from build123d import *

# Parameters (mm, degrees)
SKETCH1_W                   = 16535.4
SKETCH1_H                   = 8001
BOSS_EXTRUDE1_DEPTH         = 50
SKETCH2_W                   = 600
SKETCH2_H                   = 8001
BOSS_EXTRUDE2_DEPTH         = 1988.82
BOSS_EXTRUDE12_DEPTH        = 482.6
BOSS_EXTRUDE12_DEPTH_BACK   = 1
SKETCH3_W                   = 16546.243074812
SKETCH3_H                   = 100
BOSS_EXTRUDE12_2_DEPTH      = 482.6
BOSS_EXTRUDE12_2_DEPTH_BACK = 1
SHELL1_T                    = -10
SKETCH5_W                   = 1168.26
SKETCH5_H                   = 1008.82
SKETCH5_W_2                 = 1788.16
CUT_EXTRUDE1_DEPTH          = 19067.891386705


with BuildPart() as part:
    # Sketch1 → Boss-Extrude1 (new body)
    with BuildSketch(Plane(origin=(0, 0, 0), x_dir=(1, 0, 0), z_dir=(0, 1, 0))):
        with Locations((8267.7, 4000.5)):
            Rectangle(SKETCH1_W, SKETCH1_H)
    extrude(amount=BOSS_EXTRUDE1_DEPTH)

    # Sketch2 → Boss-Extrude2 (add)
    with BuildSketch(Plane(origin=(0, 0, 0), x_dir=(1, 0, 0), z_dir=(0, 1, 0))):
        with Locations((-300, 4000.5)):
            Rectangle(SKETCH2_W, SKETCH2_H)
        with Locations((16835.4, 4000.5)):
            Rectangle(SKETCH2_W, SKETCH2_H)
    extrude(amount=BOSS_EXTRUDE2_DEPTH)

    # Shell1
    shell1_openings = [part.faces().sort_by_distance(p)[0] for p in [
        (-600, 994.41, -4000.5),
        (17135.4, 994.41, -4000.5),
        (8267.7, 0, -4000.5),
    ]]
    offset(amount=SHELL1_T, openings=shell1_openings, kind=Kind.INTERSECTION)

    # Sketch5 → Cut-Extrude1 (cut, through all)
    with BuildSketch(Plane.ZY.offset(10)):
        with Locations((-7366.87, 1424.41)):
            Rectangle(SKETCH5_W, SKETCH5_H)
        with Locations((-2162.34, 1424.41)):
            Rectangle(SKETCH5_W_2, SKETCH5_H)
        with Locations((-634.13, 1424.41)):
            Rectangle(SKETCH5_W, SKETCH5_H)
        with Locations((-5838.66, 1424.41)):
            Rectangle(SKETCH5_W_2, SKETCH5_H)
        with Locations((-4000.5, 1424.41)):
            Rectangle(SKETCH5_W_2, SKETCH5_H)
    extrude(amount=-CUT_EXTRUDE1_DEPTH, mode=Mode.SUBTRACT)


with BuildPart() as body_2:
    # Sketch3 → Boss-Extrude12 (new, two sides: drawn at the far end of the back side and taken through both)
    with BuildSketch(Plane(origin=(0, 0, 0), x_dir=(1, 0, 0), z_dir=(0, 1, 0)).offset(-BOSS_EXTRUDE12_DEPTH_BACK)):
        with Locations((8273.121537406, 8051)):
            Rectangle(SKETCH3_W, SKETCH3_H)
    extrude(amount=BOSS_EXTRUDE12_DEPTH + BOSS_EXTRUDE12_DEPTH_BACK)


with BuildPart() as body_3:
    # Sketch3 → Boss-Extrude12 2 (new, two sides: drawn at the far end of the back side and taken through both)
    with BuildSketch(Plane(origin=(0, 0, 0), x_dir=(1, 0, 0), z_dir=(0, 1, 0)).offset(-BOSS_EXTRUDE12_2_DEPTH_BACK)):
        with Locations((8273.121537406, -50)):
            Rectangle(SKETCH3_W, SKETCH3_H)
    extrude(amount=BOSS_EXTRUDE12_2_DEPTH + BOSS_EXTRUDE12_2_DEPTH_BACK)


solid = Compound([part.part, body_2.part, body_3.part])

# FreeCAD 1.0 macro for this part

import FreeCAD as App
import Part
import Sketcher

V = App.Vector
Q = App.Units.Quantity


def faces_at(feature, points):
    """Names of the faces that lie closest to the given points."""
    faces = feature.Shape.Faces
    near = lambda p: min(range(len(faces)), key=lambda i: faces[i].distToShape(Part.Vertex(*p))[0])
    return sorted({f"Face{near(p) + 1}" for p in points})

doc = App.newDocument("Part")
body = doc.addObject("PartDesign::Body", "Body")

sketch1 = doc.addObject("Sketcher::SketchObject", "Sketch")
body.addObject(sketch1)
sketch1.AttachmentSupport = (doc.XZ_Plane, [""])
sketch1.MapMode = "FlatFace"
sketch1.addGeometry([
    Part.LineSegment(V(0, -8001, 0), V(0, 0, 0)),
    Part.LineSegment(V(0, 0, 0), V(16535.4, 0, 0)),
    Part.LineSegment(V(16535.4, 0, 0), V(16535.4, -8001, 0)),
    Part.LineSegment(V(16535.4, -8001, 0), V(0, -8001, 0)),
], False)
sketch1.addConstraint([
    Sketcher.Constraint("Coincident", 0, 2, 1, 1),
    Sketcher.Constraint("Coincident", 1, 2, 2, 1),
    Sketcher.Constraint("Coincident", 2, 2, 3, 1),
    Sketcher.Constraint("Coincident", 3, 2, 0, 1),
    Sketcher.Constraint("Vertical", 0),
    Sketcher.Constraint("Horizontal", 1),
    Sketcher.Constraint("Vertical", 2),
    Sketcher.Constraint("Horizontal", 3),
    Sketcher.Constraint("Coincident", 0, 2, -1, 1),
    Sketcher.Constraint("DistanceX", 1, 1, 1, 2, Q("651 in")),
    Sketcher.Constraint("DistanceY", 0, 1, 0, 2, Q("315 in")),
])
pad1 = doc.addObject("PartDesign::Pad", "Pad")
body.addObject(pad1)
pad1.Profile = sketch1
pad1.Length = 50
pad1.Reversed = True

sketch2 = doc.addObject("Sketcher::SketchObject", "Sketch001")
body.addObject(sketch2)
sketch2.AttachmentSupport = (doc.XZ_Plane, [""])
sketch2.MapMode = "FlatFace"
sketch2.addGeometry([
    Part.LineSegment(V(-600, -8001, 0), V(-600, 0, 0)),
    Part.LineSegment(V(-600, 0, 0), V(0, 0, 0)),
    Part.LineSegment(V(0, 0, 0), V(0, -8001, 0)),
    Part.LineSegment(V(0, -8001, 0), V(-600, -8001, 0)),
    Part.LineSegment(V(16535.4, -8001, 0), V(16535.4, 0, 0)),
    Part.LineSegment(V(16535.4, 0, 0), V(17135.4, 0, 0)),
    Part.LineSegment(V(17135.4, 0, 0), V(17135.4, -8001, 0)),
    Part.LineSegment(V(17135.4, -8001, 0), V(16535.4, -8001, 0)),
], False)
sketch2.addConstraint([
    Sketcher.Constraint("Coincident", 0, 2, 1, 1),
    Sketcher.Constraint("Coincident", 1, 2, 2, 1),
    Sketcher.Constraint("Coincident", 2, 2, 3, 1),
    Sketcher.Constraint("Coincident", 3, 2, 0, 1),
    Sketcher.Constraint("Coincident", 4, 2, 5, 1),
    Sketcher.Constraint("Coincident", 5, 2, 6, 1),
    Sketcher.Constraint("Coincident", 6, 2, 7, 1),
    Sketcher.Constraint("Coincident", 7, 2, 4, 1),
    Sketcher.Constraint("Vertical", 0),
    Sketcher.Constraint("Horizontal", 1),
    Sketcher.Constraint("Vertical", 2),
    Sketcher.Constraint("Horizontal", 3),
    Sketcher.Constraint("Vertical", 4),
    Sketcher.Constraint("Horizontal", 5),
    Sketcher.Constraint("Vertical", 6),
    Sketcher.Constraint("Horizontal", 7),
    Sketcher.Constraint("Coincident", 1, 2, -1, 1),
    Sketcher.Constraint("PointOnObject", 4, 2, -1),
    Sketcher.Constraint("Horizontal", 3, 2, 6, 2),
    Sketcher.Constraint("Equal", 3, 5),
    Sketcher.Constraint("DistanceY", 0, 1, 0, 2, Q("315 in")),
    Sketcher.Constraint("DistanceX", -1, 1, 4, 2, Q("651 in")),
    Sketcher.Constraint("DistanceX", 1, 1, 1, 2, Q("600 mm")),
])
pad2 = doc.addObject("PartDesign::Pad", "Pad001")
body.addObject(pad2)
pad2.Profile = sketch2
pad2.Length = Q("78.3 in")
pad2.Reversed = True
doc.recompute()

thickness = doc.addObject("PartDesign::Thickness", "Thickness")
body.addObject(thickness)
thickness.Base = (pad2, faces_at(pad2, [(-600, 994.41, -4000.5), (17135.4, 994.41, -4000.5), (8267.7, 0, -4000.5)]))
thickness.Value = 10
thickness.Reversed = True
thickness.Join = "Intersection"

sketch3 = doc.addObject("Sketcher::SketchObject", "Sketch002")
body.addObject(sketch3)
sketch3.AttachmentSupport = (doc.YZ_Plane, [""])
sketch3.MapMode = "FlatFace"
sketch3.AttachmentOffset = App.Placement(V(0, 0, -10), App.Rotation())
sketch3.addGeometry([
    Part.LineSegment(V(1928.82, -7951, 0), V(920, -7951, 0)),
    Part.LineSegment(V(920, -7951, 0), V(920, -6782.74, 0)),
    Part.LineSegment(V(920, -6782.74, 0), V(1928.82, -6782.74, 0)),
    Part.LineSegment(V(1928.82, -6782.74, 0), V(1928.82, -7951, 0)),
    Part.LineSegment(V(1928.82, -3056.42, 0), V(920, -3056.42, 0)),
    Part.LineSegment(V(920, -3056.42, 0), V(920, -1268.26, 0)),
    Part.LineSegment(V(920, -1268.26, 0), V(1928.82, -1268.26, 0)),
    Part.LineSegment(V(1928.82, -1268.26, 0), V(1928.82, -3056.42, 0)),
    Part.LineSegment(V(1928.82, -1218.26, 0), V(920, -1218.26, 0)),
    Part.LineSegment(V(920, -1218.26, 0), V(920, -50, 0)),
    Part.LineSegment(V(920, -50, 0), V(1928.82, -50, 0)),
    Part.LineSegment(V(1928.82, -50, 0), V(1928.82, -1218.26, 0)),
    Part.LineSegment(V(1928.82, -6732.74, 0), V(920, -6732.74, 0)),
    Part.LineSegment(V(920, -6732.74, 0), V(920, -4944.58, 0)),
    Part.LineSegment(V(920, -4944.58, 0), V(1928.82, -4944.58, 0)),
    Part.LineSegment(V(1928.82, -4944.58, 0), V(1928.82, -6732.74, 0)),
    Part.LineSegment(V(1928.82, -4894.58, 0), V(920, -4894.58, 0)),
    Part.LineSegment(V(920, -4894.58, 0), V(920, -3106.42, 0)),
    Part.LineSegment(V(920, -3106.42, 0), V(1928.82, -3106.42, 0)),
    Part.LineSegment(V(1928.82, -3106.42, 0), V(1928.82, -4894.58, 0)),
], False)
sketch3.addConstraint([
    Sketcher.Constraint("Coincident", 0, 2, 1, 1),
    Sketcher.Constraint("Coincident", 1, 2, 2, 1),
    Sketcher.Constraint("Coincident", 2, 2, 3, 1),
    Sketcher.Constraint("Coincident", 3, 2, 0, 1),
    Sketcher.Constraint("Coincident", 4, 2, 5, 1),
    Sketcher.Constraint("Coincident", 5, 2, 6, 1),
    Sketcher.Constraint("Coincident", 6, 2, 7, 1),
    Sketcher.Constraint("Coincident", 7, 2, 4, 1),
    Sketcher.Constraint("Coincident", 8, 2, 9, 1),
    Sketcher.Constraint("Coincident", 9, 2, 10, 1),
    Sketcher.Constraint("Coincident", 10, 2, 11, 1),
    Sketcher.Constraint("Coincident", 11, 2, 8, 1),
    Sketcher.Constraint("Coincident", 12, 2, 13, 1),
    Sketcher.Constraint("Coincident", 13, 2, 14, 1),
    Sketcher.Constraint("Coincident", 14, 2, 15, 1),
    Sketcher.Constraint("Coincident", 15, 2, 12, 1),
    Sketcher.Constraint("Coincident", 16, 2, 17, 1),
    Sketcher.Constraint("Coincident", 17, 2, 18, 1),
    Sketcher.Constraint("Coincident", 18, 2, 19, 1),
    Sketcher.Constraint("Coincident", 19, 2, 16, 1),
    Sketcher.Constraint("Horizontal", 0),
    Sketcher.Constraint("Vertical", 1),
    Sketcher.Constraint("Horizontal", 2),
    Sketcher.Constraint("Vertical", 3),
    Sketcher.Constraint("Horizontal", 4),
    Sketcher.Constraint("Vertical", 5),
    Sketcher.Constraint("Horizontal", 6),
    Sketcher.Constraint("Vertical", 7),
    Sketcher.Constraint("Horizontal", 8),
    Sketcher.Constraint("Vertical", 9),
    Sketcher.Constraint("Horizontal", 10),
    Sketcher.Constraint("Vertical", 11),
    Sketcher.Constraint("Horizontal", 12),
    Sketcher.Constraint("Vertical", 13),
    Sketcher.Constraint("Horizontal", 14),
    Sketcher.Constraint("Vertical", 15),
    Sketcher.Constraint("Horizontal", 16),
    Sketcher.Constraint("Vertical", 17),
    Sketcher.Constraint("Horizontal", 18),
    Sketcher.Constraint("Vertical", 19),
    Sketcher.Constraint("Vertical", 1, 2, 4, 2),
    Sketcher.Constraint("Vertical", 3, 2, 6, 2),
    Sketcher.Constraint("Vertical", 5, 2, 8, 2),
    Sketcher.Constraint("Vertical", 7, 2, 10, 2),
    Sketcher.Constraint("Vertical", 9, 2, 12, 2),
    Sketcher.Constraint("Vertical", 11, 2, 14, 2),
    Sketcher.Constraint("Vertical", 13, 2, 16, 2),
    Sketcher.Constraint("Vertical", 15, 2, 18, 2),
    Sketcher.Constraint("Equal", 3, 9),
    Sketcher.Constraint("Equal", 7, 13),
    Sketcher.Constraint("Equal", 15, 17),
    Sketcher.Constraint("DistanceY", 5, 1, 5, 2, Q("70.4 in")),
    Sketcher.Constraint("DistanceY", 16, 2, -1, 1, Q("192.7 in")),
    Sketcher.Constraint("DistanceY", 0, 2, 4, 2, Q("192.7 in")),
    Sketcher.Constraint("DistanceX", 0, 2, 0, 1, Q("1008.82 mm")),
    Sketcher.Constraint("DistanceY", 1, 1, 1, 2, Q("1168.26 mm")),
    Sketcher.Constraint("DistanceX", -1, 1, 0, 2, Q("920 mm")),
    Sketcher.Constraint("DistanceY", 0, 2, -1, 1, Q("7951 mm")),
    Sketcher.Constraint("DistanceY", 8, 2, -1, 1, Q("1218.26 mm")),
    Sketcher.Constraint("DistanceY", 12, 2, -1, 1, Q("6732.74 mm")),
])
pocket1 = doc.addObject("PartDesign::Pocket", "Pocket")
body.addObject(pocket1)
pocket1.Profile = sketch3
pocket1.Type = "ThroughAll"
pocket1.Reversed = True
body2 = doc.addObject("PartDesign::Body", "Body001")

sketch4 = doc.addObject("Sketcher::SketchObject", "Sketch003")
body2.addObject(sketch4)
sketch4.AttachmentSupport = (doc.getObject("XZ_Plane001"), [""])
sketch4.MapMode = "FlatFace"
sketch4.addGeometry([
    Part.LineSegment(V(0, -8101, 0), V(0, -8001, 0)),
    Part.LineSegment(V(0, -8001, 0), V(16546.243075, -8001, 0)),
    Part.LineSegment(V(16546.243075, -8001, 0), V(16546.243075, -8101, 0)),
    Part.LineSegment(V(16546.243075, -8101, 0), V(0, -8101, 0)),
], False)
sketch4.addConstraint([
    Sketcher.Constraint("Coincident", 0, 2, 1, 1),
    Sketcher.Constraint("Coincident", 1, 2, 2, 1),
    Sketcher.Constraint("Coincident", 2, 2, 3, 1),
    Sketcher.Constraint("Coincident", 3, 2, 0, 1),
    Sketcher.Constraint("Vertical", 0),
    Sketcher.Constraint("Horizontal", 1),
    Sketcher.Constraint("Vertical", 2),
    Sketcher.Constraint("Horizontal", 3),
    Sketcher.Constraint("PointOnObject", 0, 2, -2),
    Sketcher.Constraint("DistanceY", 0, 2, -1, 1, Q("315 in")),
    Sketcher.Constraint("DistanceY", 0, 1, 0, 2, Q("100 mm")),
    Sketcher.Constraint("DistanceX", 1, 1, 1, 2, Q("16546.243075 mm")),
])
pad3 = doc.addObject("PartDesign::Pad", "Pad002")
body2.addObject(pad3)
pad3.Profile = sketch4
pad3.Type = "TwoLengths"
pad3.Length = Q("19 in")
pad3.Length2 = 1
pad3.Reversed = True
body3 = doc.addObject("PartDesign::Body", "Body002")

sketch5 = doc.addObject("Sketcher::SketchObject", "Sketch004")
body3.addObject(sketch5)
sketch5.AttachmentSupport = (doc.getObject("XZ_Plane002"), [""])
sketch5.MapMode = "FlatFace"
sketch5.addGeometry([
    Part.LineSegment(V(0, 0, 0), V(0, 100, 0)),
    Part.LineSegment(V(0, 100, 0), V(16546.243075, 100, 0)),
    Part.LineSegment(V(16546.243075, 100, 0), V(16546.243075, 0, 0)),
    Part.LineSegment(V(16546.243075, 0, 0), V(0, 0, 0)),
], False)
sketch5.addConstraint([
    Sketcher.Constraint("Coincident", 0, 2, 1, 1),
    Sketcher.Constraint("Coincident", 1, 2, 2, 1),
    Sketcher.Constraint("Coincident", 2, 2, 3, 1),
    Sketcher.Constraint("Coincident", 3, 2, 0, 1),
    Sketcher.Constraint("Vertical", 0),
    Sketcher.Constraint("Horizontal", 1),
    Sketcher.Constraint("Vertical", 2),
    Sketcher.Constraint("Horizontal", 3),
    Sketcher.Constraint("Coincident", 3, 2, -1, 1),
    Sketcher.Constraint("DistanceY", 0, 1, 0, 2, Q("100 mm")),
    Sketcher.Constraint("DistanceX", 1, 1, 1, 2, Q("16546.243075 mm")),
])
pad4 = doc.addObject("PartDesign::Pad", "Pad003")
body3.addObject(pad4)
pad4.Profile = sketch5
pad4.Type = "TwoLengths"
pad4.Length = Q("19 in")
pad4.Length2 = 1
pad4.Reversed = True

doc.recompute()
